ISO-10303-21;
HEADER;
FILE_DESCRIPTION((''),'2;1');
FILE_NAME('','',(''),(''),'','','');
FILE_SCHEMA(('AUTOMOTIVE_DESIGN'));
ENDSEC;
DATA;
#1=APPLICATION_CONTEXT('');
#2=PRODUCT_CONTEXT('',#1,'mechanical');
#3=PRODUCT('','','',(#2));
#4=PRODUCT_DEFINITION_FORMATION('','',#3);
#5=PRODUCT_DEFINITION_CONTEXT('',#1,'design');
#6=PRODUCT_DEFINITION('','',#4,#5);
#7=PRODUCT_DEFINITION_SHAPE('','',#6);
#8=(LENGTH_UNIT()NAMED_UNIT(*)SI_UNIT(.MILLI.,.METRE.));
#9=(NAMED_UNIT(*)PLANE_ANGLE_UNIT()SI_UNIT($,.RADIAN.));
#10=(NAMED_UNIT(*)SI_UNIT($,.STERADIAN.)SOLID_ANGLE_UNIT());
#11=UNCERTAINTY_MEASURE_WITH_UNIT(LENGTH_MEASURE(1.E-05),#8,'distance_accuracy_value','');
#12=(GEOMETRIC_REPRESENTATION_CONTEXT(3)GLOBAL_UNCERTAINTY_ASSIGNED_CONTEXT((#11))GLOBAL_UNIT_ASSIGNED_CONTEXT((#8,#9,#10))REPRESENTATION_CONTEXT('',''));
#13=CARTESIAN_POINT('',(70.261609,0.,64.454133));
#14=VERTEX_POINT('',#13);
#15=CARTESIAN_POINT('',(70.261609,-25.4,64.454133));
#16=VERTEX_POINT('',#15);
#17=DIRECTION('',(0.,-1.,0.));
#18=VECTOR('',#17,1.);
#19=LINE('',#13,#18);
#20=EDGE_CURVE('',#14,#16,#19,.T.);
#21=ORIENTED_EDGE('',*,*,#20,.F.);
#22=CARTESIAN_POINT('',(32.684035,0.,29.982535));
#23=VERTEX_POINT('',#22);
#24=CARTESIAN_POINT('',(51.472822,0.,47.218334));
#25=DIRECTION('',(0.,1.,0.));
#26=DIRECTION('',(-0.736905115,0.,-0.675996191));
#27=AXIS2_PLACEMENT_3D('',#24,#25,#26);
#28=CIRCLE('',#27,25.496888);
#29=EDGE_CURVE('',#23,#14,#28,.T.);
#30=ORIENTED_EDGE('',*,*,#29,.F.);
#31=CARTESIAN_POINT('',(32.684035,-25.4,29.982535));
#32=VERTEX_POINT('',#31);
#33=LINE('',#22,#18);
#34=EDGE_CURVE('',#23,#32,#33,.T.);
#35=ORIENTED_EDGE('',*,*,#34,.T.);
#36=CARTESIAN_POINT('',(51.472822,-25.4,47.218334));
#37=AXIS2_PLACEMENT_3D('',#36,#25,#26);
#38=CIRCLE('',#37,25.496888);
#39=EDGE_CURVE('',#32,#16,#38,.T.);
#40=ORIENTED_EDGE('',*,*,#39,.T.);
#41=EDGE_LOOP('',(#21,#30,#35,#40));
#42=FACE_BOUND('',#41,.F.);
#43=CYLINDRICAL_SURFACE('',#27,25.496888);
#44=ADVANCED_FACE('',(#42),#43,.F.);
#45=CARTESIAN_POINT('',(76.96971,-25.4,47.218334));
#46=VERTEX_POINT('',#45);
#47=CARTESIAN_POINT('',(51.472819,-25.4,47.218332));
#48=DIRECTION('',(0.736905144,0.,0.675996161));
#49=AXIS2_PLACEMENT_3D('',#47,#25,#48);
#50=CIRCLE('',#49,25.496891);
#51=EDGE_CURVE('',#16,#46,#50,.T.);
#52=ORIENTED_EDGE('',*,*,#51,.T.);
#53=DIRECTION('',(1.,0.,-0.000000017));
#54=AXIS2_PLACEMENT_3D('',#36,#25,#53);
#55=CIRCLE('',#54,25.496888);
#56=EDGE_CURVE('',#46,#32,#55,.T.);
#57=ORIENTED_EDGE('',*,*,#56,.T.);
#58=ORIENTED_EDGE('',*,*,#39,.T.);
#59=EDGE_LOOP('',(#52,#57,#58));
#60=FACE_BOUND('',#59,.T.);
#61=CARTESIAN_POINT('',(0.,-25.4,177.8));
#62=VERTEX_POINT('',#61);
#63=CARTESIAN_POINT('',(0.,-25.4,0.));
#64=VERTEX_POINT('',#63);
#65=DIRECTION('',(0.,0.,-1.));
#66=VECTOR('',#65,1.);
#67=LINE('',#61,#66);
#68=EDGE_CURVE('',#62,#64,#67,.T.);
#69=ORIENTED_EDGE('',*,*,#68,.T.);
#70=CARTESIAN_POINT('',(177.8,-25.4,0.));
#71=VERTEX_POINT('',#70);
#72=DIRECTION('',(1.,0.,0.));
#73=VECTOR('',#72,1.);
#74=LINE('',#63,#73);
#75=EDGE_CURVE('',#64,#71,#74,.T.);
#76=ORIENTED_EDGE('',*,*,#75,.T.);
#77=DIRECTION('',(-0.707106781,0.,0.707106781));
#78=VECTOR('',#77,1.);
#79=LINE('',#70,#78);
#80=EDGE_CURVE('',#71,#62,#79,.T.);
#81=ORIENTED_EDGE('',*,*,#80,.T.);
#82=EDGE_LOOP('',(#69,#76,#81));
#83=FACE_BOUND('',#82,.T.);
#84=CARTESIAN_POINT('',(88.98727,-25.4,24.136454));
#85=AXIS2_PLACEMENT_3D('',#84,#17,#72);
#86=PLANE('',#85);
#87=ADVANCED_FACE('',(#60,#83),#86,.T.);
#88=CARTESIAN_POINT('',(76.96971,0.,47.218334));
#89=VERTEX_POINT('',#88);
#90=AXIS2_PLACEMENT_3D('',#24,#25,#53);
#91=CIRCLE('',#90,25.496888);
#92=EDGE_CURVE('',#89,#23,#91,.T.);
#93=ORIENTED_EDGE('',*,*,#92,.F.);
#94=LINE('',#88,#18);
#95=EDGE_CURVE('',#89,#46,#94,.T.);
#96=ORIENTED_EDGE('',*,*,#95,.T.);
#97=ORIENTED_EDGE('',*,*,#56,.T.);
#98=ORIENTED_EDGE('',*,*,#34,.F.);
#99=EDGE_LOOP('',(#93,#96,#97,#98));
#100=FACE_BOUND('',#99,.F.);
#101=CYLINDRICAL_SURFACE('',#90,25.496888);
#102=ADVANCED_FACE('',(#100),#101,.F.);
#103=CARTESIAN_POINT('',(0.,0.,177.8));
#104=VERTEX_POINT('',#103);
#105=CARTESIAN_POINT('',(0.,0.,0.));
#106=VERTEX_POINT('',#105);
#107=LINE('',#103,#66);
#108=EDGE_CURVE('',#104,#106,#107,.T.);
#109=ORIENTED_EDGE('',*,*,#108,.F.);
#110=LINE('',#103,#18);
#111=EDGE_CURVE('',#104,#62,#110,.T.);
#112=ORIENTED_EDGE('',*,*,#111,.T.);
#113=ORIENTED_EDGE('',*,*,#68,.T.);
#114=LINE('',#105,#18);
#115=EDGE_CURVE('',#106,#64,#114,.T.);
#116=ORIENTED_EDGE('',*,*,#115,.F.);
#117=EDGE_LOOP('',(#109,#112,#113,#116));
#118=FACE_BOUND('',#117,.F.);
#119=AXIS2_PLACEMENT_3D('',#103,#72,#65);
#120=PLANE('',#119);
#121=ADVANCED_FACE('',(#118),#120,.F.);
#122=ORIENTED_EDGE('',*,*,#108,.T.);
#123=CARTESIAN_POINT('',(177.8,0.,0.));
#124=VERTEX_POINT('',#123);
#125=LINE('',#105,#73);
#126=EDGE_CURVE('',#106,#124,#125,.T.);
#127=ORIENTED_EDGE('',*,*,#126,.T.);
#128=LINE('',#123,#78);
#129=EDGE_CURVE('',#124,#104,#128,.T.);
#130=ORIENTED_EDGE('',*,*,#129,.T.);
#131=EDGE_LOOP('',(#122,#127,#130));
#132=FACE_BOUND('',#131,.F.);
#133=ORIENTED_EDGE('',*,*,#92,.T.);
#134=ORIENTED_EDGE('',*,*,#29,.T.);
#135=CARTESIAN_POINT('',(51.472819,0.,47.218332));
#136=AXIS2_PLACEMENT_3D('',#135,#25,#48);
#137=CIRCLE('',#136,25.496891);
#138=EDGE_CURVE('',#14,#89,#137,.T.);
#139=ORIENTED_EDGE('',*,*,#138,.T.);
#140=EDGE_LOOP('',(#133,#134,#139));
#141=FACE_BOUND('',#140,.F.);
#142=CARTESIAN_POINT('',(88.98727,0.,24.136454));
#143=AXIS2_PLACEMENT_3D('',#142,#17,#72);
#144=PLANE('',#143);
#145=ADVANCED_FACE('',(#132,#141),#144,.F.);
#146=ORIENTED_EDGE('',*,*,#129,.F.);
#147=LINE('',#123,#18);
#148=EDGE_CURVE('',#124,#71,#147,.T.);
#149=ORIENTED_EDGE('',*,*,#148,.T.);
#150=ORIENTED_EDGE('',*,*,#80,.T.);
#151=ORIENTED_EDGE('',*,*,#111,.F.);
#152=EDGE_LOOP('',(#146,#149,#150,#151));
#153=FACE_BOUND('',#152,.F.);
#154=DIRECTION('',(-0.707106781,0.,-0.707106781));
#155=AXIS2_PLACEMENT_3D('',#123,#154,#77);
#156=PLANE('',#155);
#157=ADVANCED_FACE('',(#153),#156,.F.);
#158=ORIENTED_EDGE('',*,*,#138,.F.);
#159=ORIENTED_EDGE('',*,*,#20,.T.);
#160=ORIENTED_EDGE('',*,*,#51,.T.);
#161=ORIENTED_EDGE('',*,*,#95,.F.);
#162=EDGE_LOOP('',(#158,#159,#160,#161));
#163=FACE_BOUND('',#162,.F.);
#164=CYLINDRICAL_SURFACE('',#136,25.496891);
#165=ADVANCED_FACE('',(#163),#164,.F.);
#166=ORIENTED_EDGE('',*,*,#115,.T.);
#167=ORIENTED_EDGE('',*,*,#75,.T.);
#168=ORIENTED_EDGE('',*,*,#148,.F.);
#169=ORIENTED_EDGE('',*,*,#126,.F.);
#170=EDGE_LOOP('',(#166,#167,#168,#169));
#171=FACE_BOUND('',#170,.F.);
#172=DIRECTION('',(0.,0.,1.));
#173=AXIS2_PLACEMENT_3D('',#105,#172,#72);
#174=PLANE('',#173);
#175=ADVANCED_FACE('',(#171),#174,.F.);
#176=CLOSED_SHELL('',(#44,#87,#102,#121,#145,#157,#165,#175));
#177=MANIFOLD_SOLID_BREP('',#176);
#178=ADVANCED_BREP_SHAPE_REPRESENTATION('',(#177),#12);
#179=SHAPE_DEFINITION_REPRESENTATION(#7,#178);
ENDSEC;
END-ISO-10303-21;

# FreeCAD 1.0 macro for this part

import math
import FreeCAD as App
import Part
import Sketcher
from FreeCAD import Vector
Q = App.Units.Quantity

doc = App.newDocument("Part")
params = doc.addObject("Spreadsheet::Sheet", "Params")
for row, (alias, value) in enumerate([
    ("sketch1_width", "7 in"),
    ("pad1_length", "1 in"),
], start=1):
    params.set(f"A{row}", alias)
    params.set(f"B{row}", "=" + value)
    params.setAlias(f"B{row}", alias)

body = doc.addObject("PartDesign::Body", "Body")

# Sketch on XZ plane
sketch1 = doc.addObject("Sketcher::SketchObject", "Sketch")
body.addObject(sketch1)
sketch1.AttachmentSupport = (doc.XZ_Plane, [""])
sketch1.MapMode = "FlatFace"
sketch1.addGeometry([
    Part.LineSegment(Vector(0, 0, 0), Vector(178, 0, 0)),  # 0
    Part.LineSegment(Vector(178, 0, 0), Vector(0, 178, 0)),  # 1
    Part.LineSegment(Vector(0, 178, 0), Vector(0, 0, 0)),  # 2
    Part.ArcOfCircle(Part.Circle(Vector(51, 47, 0), Vector(0, 0, 1), 25), math.radians(0), math.radians(43)),  # 3
    Part.ArcOfCircle(Part.Circle(Vector(51, 47, 0), Vector(0, 0, 1), 25), math.radians(-137), math.radians(0)),  # 4
    Part.ArcOfCircle(Part.Circle(Vector(51, 47, 0), Vector(0, 0, 1), 25), math.radians(43), math.radians(223)),  # 5
], False)
sketch1.addConstraint([
    Sketcher.Constraint("Coincident", 0, 2, 1, 1),
    Sketcher.Constraint("Coincident", 1, 2, 2, 1),
    Sketcher.Constraint("Coincident", 2, 2, 0, 1),
    Sketcher.Constraint("Tangent", 3, 1, 4, 2),
    Sketcher.Constraint("Tangent", 4, 1, 5, 2),
    Sketcher.Constraint("Tangent", 5, 1, 3, 2),
    Sketcher.Constraint("Horizontal", 0),
    Sketcher.Constraint("Vertical", 2),
    Sketcher.Constraint("Coincident", 2, 2, -1, 1),
    Sketcher.Constraint("Horizontal", 5, 3, 3, 1),
    Sketcher.Constraint("Equal", 0, 2),
    Sketcher.Constraint("DistanceX", 0, 1, 0, 2, Q("7 in")),
    Sketcher.Constraint("Radius", 3, 25.496891),
    Sketcher.Constraint("DistanceY", 4, 1, 5, 3, 17.235799),
    Sketcher.Constraint("DistanceX", 5, 1, 3, 1, 6.708101),
    Sketcher.Constraint("DistanceX", -1, 1, 3, 3, 51.472819),
    Sketcher.Constraint("DistanceY", -1, 1, 3, 3, 47.218332),
])
sketch1.setExpression("Constraints[11]", "Params.sketch1_width")
pad1 = doc.addObject("PartDesign::Pad", "Pad")
body.addObject(pad1)
pad1.Profile = sketch1
pad1.setExpression("Length", "Params.pad1_length")

doc.recompute()
